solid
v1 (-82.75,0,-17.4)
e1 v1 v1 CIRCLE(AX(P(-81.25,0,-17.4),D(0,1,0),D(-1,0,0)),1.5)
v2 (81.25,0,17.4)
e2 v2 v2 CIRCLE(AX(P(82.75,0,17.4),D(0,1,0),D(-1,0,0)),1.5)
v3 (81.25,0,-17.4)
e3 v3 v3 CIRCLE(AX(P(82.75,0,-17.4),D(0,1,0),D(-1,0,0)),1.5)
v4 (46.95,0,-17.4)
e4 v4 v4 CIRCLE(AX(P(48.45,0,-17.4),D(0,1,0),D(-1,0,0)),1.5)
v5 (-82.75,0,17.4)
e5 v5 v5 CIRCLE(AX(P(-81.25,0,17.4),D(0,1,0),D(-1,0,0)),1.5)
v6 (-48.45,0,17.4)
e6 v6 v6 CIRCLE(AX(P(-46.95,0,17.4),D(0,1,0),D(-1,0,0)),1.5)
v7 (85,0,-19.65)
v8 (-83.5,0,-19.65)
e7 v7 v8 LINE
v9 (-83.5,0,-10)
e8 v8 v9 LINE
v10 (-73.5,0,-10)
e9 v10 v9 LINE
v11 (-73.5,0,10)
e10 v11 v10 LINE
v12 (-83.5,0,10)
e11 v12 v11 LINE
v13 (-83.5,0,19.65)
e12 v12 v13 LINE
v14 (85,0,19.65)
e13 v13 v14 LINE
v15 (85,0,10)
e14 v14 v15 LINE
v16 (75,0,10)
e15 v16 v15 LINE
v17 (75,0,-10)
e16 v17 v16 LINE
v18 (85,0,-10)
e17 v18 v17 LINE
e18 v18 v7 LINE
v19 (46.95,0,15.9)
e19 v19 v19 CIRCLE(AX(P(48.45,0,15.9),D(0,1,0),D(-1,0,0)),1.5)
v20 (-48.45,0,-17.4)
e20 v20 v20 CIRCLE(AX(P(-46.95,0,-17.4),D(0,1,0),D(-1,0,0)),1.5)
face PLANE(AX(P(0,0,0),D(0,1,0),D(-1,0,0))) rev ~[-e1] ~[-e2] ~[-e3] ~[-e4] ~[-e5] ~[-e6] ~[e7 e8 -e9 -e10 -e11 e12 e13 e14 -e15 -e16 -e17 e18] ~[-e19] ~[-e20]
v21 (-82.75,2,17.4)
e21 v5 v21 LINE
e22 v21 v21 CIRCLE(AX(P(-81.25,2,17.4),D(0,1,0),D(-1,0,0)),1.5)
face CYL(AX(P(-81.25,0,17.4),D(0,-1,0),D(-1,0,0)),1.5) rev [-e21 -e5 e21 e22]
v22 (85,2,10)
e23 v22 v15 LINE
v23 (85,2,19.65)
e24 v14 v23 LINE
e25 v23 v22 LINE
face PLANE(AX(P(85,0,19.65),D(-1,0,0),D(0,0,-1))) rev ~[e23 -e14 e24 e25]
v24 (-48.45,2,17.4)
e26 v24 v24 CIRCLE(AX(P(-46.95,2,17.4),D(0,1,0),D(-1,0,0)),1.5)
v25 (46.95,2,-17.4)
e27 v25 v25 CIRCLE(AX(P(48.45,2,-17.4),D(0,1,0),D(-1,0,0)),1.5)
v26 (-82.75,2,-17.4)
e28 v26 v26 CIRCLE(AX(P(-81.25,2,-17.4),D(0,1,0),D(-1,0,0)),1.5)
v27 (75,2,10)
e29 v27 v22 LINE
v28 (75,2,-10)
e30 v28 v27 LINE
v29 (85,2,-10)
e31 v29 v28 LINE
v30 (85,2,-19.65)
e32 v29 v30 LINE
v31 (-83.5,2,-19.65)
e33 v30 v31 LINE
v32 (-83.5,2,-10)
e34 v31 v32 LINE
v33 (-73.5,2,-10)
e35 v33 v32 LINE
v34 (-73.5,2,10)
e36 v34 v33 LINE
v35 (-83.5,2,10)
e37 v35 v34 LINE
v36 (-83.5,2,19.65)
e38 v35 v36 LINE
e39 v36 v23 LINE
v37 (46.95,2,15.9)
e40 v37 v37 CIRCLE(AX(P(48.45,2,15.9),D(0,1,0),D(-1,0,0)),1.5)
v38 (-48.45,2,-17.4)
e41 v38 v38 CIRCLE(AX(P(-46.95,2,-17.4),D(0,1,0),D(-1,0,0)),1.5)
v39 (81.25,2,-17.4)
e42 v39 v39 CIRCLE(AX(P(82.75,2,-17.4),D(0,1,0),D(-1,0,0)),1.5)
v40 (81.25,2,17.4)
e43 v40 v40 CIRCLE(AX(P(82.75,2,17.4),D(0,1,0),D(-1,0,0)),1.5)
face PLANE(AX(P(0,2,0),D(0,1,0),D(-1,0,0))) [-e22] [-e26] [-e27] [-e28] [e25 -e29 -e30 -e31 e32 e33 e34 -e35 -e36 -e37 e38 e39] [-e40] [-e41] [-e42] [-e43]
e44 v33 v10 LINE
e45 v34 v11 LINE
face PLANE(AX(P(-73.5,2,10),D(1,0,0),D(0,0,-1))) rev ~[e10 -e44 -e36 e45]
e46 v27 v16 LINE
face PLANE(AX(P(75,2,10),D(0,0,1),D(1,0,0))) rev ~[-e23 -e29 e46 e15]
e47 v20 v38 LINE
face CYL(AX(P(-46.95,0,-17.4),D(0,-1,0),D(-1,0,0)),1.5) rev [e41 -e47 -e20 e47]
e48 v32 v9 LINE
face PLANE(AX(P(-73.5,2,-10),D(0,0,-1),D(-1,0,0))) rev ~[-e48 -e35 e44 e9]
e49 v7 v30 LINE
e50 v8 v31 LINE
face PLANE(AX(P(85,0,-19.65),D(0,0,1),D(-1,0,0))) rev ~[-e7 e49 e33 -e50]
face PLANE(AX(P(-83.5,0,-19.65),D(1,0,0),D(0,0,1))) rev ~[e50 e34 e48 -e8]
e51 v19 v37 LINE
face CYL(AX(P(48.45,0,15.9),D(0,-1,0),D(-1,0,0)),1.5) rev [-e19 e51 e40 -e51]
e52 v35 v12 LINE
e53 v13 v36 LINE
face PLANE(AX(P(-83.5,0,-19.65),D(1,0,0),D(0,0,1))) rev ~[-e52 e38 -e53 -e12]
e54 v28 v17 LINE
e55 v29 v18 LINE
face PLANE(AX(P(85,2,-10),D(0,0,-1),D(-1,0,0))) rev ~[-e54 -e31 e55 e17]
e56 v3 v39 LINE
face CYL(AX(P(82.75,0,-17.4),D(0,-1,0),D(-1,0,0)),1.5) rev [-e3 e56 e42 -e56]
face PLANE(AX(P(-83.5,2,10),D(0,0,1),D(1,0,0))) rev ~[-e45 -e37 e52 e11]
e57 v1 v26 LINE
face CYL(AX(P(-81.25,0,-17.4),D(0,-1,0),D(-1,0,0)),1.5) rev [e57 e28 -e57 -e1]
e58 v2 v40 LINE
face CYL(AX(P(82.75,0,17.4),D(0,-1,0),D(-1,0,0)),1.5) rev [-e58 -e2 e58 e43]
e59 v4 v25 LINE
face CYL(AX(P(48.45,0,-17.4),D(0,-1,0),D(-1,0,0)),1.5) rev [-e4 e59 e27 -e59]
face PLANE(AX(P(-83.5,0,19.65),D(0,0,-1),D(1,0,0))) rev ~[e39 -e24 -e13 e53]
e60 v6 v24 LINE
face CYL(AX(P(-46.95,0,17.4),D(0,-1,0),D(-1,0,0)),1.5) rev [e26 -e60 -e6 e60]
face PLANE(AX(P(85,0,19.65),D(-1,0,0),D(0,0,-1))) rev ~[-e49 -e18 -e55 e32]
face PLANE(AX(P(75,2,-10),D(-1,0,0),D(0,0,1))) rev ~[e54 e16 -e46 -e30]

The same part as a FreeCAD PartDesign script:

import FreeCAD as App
import Part
import Sketcher

V = App.Vector

doc = App.newDocument("Part")
body = doc.addObject("PartDesign::Body", "Body")

sketch1 = doc.addObject("Sketcher::SketchObject", "Sketch")
body.addObject(sketch1)
sketch1.AttachmentSupport = (doc.XZ_Plane, [""])
sketch1.MapMode = "FlatFace"
sketch1.addGeometry([
    Part.LineSegment(V(-83.5, -19.6, 0), V(-83.5, 19.6, 0)),
    Part.LineSegment(V(-83.5, 19.6, 0), V(85, 19.6, 0)),
    Part.LineSegment(V(85, 19.6, 0), V(85, -19.6, 0)),
    Part.LineSegment(V(85, -19.6, 0), V(-83.5, -19.6, 0)),
    Part.Circle(V(82.8, -17.4, 0), V(0, 0, 1), 1.5),
    Part.Circle(V(82.8, 17.4, 0), V(0, 0, 1), 1.5),
], False)
sketch1.addConstraint([
    Sketcher.Constraint("Coincident", 0, 2, 1, 1),
    Sketcher.Constraint("Coincident", 1, 2, 2, 1),
    Sketcher.Constraint("Coincident", 2, 2, 3, 1),
    Sketcher.Constraint("Coincident", 3, 2, 0, 1),
    Sketcher.Constraint("Vertical", 0),
    Sketcher.Constraint("Horizontal", 1),
    Sketcher.Constraint("Vertical", 2),
    Sketcher.Constraint("Horizontal", 3),
    Sketcher.Constraint("Equal", 4, 5),
    Sketcher.Constraint("Symmetric", 4, 3, 5, 3, -1),
    Sketcher.Constraint("Diameter", 4, 3.0),
    Sketcher.Constraint("DistanceX", 1, 1, 1, 2, 168.5),
    Sketcher.Constraint("DistanceY", 0, 1, 0, 2, 39.3),
    Sketcher.Constraint("DistanceY", 5, 3, 0, 2, 2.25),
    Sketcher.Constraint("DistanceX", 5, 3, 1, 2, 2.25),
    Sketcher.Constraint("DistanceY", 2, 2, 4, 3, 2.25),
    Sketcher.Constraint("DistanceX", -1, 1, 1, 2, 85.0),
])
pad1 = doc.addObject("PartDesign::Pad", "Pad")
body.addObject(pad1)
pad1.Profile = sketch1
pad1.Length = 2
pad1.Reversed = True

sketch2 = doc.addObject("Sketcher::SketchObject", "Sketch001")
body.addObject(sketch2)
sketch2.AttachmentSupport = (doc.XZ_Plane, [""])
sketch2.MapMode = "FlatFace"
sketch2.addGeometry([
    Part.Circle(V(-81.2, 17.4, 0), V(0, 0, 1), 1.5),
    Part.Circle(V(-81.2, -17.4, 0), V(0, 0, 1), 1.5),
], False)
sketch2.addConstraint([
    Sketcher.Constraint("Equal", 0, 1),
    Sketcher.Constraint("Symmetric", 0, 3, 1, 3, -1),
    Sketcher.Constraint("Diameter", 0, 3.0),
    Sketcher.Constraint("DistanceY", -1, 1, 0, 3, 17.4),
    Sketcher.Constraint("DistanceX", 0, 3, -1, 1, 81.25),
])
pocket1 = doc.addObject("PartDesign::Pocket", "Pocket")
body.addObject(pocket1)
pocket1.Profile = sketch2
pocket1.Length = 2

sketch3 = doc.addObject("Sketcher::SketchObject", "Sketch002")
body.addObject(sketch3)
sketch3.AttachmentSupport = (doc.XZ_Plane, [""])
sketch3.MapMode = "FlatFace"
sketch3.AttachmentOffset = App.Placement(V(0, 0, -2), App.Rotation())
sketch3.addGeometry([
    Part.LineSegment(V(-84, -10, 0), V(-84, 10, 0)),
    Part.LineSegment(V(-84, 10, 0), V(-74, 10, 0)),
    Part.LineSegment(V(-74, 10, 0), V(-74, -10, 0)),
    Part.LineSegment(V(-74, -10, 0), V(-84, -10, 0)),
    Part.LineSegment(V(75, -10, 0), V(75, 10, 0)),
    Part.LineSegment(V(75, 10, 0), V(85, 10, 0)),
    Part.LineSegment(V(85, 10, 0), V(85, -10, 0)),
    Part.LineSegment(V(85, -10, 0), V(75, -10, 0)),
], False)
sketch3.addConstraint([
    Sketcher.Constraint("Coincident", 0, 2, 1, 1),
    Sketcher.Constraint("Coincident", 1, 2, 2, 1),
    Sketcher.Constraint("Coincident", 2, 2, 3, 1),
    Sketcher.Constraint("Coincident", 3, 2, 0, 1),
    Sketcher.Constraint("Coincident", 4, 2, 5, 1),
    Sketcher.Constraint("Coincident", 5, 2, 6, 1),
    Sketcher.Constraint("Coincident", 6, 2, 7, 1),
    Sketcher.Constraint("Coincident", 7, 2, 4, 1),
    Sketcher.Constraint("Vertical", 0),
    Sketcher.Constraint("Horizontal", 1),
    Sketcher.Constraint("Vertical", 2),
    Sketcher.Constraint("Horizontal", 3),
    Sketcher.Constraint("Vertical", 4),
    Sketcher.Constraint("Horizontal", 5),
    Sketcher.Constraint("Vertical", 6),
    Sketcher.Constraint("Horizontal", 7),
    Sketcher.Constraint("Horizontal", 1, 2, 4, 2),
    Sketcher.Constraint("Horizontal", 3, 2, 6, 2),
    Sketcher.Constraint("Equal", 3, 5),
    Sketcher.Constraint("DistanceY", 0, 1, 0, 2, 20.0),
    Sketcher.Constraint("DistanceX", 1, 1, 1, 2, 10.0),
    Sketcher.Constraint("DistanceY", -1, 1, 0, 2, 10.0),
    Sketcher.Constraint("DistanceX", -1, 1, 4, 2, 75.0),
    Sketcher.Constraint("DistanceX", 0, 2, -1, 1, 83.5),
])
pocket2 = doc.addObject("PartDesign::Pocket", "Pocket001")
body.addObject(pocket2)
pocket2.Profile = sketch3
pocket2.Length = 2
pocket2.Reversed = True

sketch4 = doc.addObject("Sketcher::SketchObject", "Sketch003")
body.addObject(sketch4)
sketch4.AttachmentSupport = (doc.XZ_Plane, [""])
sketch4.MapMode = "FlatFace"
sketch4.addGeometry([
    Part.Circle(V(-47, 17.4, 0), V(0, 0, 1), 1.5),
    Part.Circle(V(-47, -17.4, 0), V(0, 0, 1), 1.5),
    Part.Circle(V(48.5, -17.4, 0), V(0, 0, 1), 1.5),
    Part.Circle(V(48.5, 15.9, 0), V(0, 0, 1), 1.5),
], False)
sketch4.addConstraint([
    Sketcher.Constraint("Equal", 0, 1),
    Sketcher.Constraint("Equal", 1, 2),
    Sketcher.Constraint("Equal", 2, 3),
    Sketcher.Constraint("Symmetric", 0, 3, 1, 3, -1),
    Sketcher.Constraint("Horizontal", 1, 3, 2, 3),
    Sketcher.Constraint("Vertical", 2, 3, 3, 3),
    Sketcher.Constraint("Diameter", 0, 3.0),
    Sketcher.Constraint("DistanceY", -1, 1, 0, 3, 17.4),
    Sketcher.Constraint("DistanceY", -1, 1, 3, 3, 15.9),
    Sketcher.Constraint("DistanceX", 1, 3, 2, 3, 95.4),
    Sketcher.Constraint("DistanceX", 0, 3, -1, 1, 46.95),
])
pocket3 = doc.addObject("PartDesign::Pocket", "Pocket002")
body.addObject(pocket3)
pocket3.Profile = sketch4
pocket3.Length = 2

doc.recompute()
